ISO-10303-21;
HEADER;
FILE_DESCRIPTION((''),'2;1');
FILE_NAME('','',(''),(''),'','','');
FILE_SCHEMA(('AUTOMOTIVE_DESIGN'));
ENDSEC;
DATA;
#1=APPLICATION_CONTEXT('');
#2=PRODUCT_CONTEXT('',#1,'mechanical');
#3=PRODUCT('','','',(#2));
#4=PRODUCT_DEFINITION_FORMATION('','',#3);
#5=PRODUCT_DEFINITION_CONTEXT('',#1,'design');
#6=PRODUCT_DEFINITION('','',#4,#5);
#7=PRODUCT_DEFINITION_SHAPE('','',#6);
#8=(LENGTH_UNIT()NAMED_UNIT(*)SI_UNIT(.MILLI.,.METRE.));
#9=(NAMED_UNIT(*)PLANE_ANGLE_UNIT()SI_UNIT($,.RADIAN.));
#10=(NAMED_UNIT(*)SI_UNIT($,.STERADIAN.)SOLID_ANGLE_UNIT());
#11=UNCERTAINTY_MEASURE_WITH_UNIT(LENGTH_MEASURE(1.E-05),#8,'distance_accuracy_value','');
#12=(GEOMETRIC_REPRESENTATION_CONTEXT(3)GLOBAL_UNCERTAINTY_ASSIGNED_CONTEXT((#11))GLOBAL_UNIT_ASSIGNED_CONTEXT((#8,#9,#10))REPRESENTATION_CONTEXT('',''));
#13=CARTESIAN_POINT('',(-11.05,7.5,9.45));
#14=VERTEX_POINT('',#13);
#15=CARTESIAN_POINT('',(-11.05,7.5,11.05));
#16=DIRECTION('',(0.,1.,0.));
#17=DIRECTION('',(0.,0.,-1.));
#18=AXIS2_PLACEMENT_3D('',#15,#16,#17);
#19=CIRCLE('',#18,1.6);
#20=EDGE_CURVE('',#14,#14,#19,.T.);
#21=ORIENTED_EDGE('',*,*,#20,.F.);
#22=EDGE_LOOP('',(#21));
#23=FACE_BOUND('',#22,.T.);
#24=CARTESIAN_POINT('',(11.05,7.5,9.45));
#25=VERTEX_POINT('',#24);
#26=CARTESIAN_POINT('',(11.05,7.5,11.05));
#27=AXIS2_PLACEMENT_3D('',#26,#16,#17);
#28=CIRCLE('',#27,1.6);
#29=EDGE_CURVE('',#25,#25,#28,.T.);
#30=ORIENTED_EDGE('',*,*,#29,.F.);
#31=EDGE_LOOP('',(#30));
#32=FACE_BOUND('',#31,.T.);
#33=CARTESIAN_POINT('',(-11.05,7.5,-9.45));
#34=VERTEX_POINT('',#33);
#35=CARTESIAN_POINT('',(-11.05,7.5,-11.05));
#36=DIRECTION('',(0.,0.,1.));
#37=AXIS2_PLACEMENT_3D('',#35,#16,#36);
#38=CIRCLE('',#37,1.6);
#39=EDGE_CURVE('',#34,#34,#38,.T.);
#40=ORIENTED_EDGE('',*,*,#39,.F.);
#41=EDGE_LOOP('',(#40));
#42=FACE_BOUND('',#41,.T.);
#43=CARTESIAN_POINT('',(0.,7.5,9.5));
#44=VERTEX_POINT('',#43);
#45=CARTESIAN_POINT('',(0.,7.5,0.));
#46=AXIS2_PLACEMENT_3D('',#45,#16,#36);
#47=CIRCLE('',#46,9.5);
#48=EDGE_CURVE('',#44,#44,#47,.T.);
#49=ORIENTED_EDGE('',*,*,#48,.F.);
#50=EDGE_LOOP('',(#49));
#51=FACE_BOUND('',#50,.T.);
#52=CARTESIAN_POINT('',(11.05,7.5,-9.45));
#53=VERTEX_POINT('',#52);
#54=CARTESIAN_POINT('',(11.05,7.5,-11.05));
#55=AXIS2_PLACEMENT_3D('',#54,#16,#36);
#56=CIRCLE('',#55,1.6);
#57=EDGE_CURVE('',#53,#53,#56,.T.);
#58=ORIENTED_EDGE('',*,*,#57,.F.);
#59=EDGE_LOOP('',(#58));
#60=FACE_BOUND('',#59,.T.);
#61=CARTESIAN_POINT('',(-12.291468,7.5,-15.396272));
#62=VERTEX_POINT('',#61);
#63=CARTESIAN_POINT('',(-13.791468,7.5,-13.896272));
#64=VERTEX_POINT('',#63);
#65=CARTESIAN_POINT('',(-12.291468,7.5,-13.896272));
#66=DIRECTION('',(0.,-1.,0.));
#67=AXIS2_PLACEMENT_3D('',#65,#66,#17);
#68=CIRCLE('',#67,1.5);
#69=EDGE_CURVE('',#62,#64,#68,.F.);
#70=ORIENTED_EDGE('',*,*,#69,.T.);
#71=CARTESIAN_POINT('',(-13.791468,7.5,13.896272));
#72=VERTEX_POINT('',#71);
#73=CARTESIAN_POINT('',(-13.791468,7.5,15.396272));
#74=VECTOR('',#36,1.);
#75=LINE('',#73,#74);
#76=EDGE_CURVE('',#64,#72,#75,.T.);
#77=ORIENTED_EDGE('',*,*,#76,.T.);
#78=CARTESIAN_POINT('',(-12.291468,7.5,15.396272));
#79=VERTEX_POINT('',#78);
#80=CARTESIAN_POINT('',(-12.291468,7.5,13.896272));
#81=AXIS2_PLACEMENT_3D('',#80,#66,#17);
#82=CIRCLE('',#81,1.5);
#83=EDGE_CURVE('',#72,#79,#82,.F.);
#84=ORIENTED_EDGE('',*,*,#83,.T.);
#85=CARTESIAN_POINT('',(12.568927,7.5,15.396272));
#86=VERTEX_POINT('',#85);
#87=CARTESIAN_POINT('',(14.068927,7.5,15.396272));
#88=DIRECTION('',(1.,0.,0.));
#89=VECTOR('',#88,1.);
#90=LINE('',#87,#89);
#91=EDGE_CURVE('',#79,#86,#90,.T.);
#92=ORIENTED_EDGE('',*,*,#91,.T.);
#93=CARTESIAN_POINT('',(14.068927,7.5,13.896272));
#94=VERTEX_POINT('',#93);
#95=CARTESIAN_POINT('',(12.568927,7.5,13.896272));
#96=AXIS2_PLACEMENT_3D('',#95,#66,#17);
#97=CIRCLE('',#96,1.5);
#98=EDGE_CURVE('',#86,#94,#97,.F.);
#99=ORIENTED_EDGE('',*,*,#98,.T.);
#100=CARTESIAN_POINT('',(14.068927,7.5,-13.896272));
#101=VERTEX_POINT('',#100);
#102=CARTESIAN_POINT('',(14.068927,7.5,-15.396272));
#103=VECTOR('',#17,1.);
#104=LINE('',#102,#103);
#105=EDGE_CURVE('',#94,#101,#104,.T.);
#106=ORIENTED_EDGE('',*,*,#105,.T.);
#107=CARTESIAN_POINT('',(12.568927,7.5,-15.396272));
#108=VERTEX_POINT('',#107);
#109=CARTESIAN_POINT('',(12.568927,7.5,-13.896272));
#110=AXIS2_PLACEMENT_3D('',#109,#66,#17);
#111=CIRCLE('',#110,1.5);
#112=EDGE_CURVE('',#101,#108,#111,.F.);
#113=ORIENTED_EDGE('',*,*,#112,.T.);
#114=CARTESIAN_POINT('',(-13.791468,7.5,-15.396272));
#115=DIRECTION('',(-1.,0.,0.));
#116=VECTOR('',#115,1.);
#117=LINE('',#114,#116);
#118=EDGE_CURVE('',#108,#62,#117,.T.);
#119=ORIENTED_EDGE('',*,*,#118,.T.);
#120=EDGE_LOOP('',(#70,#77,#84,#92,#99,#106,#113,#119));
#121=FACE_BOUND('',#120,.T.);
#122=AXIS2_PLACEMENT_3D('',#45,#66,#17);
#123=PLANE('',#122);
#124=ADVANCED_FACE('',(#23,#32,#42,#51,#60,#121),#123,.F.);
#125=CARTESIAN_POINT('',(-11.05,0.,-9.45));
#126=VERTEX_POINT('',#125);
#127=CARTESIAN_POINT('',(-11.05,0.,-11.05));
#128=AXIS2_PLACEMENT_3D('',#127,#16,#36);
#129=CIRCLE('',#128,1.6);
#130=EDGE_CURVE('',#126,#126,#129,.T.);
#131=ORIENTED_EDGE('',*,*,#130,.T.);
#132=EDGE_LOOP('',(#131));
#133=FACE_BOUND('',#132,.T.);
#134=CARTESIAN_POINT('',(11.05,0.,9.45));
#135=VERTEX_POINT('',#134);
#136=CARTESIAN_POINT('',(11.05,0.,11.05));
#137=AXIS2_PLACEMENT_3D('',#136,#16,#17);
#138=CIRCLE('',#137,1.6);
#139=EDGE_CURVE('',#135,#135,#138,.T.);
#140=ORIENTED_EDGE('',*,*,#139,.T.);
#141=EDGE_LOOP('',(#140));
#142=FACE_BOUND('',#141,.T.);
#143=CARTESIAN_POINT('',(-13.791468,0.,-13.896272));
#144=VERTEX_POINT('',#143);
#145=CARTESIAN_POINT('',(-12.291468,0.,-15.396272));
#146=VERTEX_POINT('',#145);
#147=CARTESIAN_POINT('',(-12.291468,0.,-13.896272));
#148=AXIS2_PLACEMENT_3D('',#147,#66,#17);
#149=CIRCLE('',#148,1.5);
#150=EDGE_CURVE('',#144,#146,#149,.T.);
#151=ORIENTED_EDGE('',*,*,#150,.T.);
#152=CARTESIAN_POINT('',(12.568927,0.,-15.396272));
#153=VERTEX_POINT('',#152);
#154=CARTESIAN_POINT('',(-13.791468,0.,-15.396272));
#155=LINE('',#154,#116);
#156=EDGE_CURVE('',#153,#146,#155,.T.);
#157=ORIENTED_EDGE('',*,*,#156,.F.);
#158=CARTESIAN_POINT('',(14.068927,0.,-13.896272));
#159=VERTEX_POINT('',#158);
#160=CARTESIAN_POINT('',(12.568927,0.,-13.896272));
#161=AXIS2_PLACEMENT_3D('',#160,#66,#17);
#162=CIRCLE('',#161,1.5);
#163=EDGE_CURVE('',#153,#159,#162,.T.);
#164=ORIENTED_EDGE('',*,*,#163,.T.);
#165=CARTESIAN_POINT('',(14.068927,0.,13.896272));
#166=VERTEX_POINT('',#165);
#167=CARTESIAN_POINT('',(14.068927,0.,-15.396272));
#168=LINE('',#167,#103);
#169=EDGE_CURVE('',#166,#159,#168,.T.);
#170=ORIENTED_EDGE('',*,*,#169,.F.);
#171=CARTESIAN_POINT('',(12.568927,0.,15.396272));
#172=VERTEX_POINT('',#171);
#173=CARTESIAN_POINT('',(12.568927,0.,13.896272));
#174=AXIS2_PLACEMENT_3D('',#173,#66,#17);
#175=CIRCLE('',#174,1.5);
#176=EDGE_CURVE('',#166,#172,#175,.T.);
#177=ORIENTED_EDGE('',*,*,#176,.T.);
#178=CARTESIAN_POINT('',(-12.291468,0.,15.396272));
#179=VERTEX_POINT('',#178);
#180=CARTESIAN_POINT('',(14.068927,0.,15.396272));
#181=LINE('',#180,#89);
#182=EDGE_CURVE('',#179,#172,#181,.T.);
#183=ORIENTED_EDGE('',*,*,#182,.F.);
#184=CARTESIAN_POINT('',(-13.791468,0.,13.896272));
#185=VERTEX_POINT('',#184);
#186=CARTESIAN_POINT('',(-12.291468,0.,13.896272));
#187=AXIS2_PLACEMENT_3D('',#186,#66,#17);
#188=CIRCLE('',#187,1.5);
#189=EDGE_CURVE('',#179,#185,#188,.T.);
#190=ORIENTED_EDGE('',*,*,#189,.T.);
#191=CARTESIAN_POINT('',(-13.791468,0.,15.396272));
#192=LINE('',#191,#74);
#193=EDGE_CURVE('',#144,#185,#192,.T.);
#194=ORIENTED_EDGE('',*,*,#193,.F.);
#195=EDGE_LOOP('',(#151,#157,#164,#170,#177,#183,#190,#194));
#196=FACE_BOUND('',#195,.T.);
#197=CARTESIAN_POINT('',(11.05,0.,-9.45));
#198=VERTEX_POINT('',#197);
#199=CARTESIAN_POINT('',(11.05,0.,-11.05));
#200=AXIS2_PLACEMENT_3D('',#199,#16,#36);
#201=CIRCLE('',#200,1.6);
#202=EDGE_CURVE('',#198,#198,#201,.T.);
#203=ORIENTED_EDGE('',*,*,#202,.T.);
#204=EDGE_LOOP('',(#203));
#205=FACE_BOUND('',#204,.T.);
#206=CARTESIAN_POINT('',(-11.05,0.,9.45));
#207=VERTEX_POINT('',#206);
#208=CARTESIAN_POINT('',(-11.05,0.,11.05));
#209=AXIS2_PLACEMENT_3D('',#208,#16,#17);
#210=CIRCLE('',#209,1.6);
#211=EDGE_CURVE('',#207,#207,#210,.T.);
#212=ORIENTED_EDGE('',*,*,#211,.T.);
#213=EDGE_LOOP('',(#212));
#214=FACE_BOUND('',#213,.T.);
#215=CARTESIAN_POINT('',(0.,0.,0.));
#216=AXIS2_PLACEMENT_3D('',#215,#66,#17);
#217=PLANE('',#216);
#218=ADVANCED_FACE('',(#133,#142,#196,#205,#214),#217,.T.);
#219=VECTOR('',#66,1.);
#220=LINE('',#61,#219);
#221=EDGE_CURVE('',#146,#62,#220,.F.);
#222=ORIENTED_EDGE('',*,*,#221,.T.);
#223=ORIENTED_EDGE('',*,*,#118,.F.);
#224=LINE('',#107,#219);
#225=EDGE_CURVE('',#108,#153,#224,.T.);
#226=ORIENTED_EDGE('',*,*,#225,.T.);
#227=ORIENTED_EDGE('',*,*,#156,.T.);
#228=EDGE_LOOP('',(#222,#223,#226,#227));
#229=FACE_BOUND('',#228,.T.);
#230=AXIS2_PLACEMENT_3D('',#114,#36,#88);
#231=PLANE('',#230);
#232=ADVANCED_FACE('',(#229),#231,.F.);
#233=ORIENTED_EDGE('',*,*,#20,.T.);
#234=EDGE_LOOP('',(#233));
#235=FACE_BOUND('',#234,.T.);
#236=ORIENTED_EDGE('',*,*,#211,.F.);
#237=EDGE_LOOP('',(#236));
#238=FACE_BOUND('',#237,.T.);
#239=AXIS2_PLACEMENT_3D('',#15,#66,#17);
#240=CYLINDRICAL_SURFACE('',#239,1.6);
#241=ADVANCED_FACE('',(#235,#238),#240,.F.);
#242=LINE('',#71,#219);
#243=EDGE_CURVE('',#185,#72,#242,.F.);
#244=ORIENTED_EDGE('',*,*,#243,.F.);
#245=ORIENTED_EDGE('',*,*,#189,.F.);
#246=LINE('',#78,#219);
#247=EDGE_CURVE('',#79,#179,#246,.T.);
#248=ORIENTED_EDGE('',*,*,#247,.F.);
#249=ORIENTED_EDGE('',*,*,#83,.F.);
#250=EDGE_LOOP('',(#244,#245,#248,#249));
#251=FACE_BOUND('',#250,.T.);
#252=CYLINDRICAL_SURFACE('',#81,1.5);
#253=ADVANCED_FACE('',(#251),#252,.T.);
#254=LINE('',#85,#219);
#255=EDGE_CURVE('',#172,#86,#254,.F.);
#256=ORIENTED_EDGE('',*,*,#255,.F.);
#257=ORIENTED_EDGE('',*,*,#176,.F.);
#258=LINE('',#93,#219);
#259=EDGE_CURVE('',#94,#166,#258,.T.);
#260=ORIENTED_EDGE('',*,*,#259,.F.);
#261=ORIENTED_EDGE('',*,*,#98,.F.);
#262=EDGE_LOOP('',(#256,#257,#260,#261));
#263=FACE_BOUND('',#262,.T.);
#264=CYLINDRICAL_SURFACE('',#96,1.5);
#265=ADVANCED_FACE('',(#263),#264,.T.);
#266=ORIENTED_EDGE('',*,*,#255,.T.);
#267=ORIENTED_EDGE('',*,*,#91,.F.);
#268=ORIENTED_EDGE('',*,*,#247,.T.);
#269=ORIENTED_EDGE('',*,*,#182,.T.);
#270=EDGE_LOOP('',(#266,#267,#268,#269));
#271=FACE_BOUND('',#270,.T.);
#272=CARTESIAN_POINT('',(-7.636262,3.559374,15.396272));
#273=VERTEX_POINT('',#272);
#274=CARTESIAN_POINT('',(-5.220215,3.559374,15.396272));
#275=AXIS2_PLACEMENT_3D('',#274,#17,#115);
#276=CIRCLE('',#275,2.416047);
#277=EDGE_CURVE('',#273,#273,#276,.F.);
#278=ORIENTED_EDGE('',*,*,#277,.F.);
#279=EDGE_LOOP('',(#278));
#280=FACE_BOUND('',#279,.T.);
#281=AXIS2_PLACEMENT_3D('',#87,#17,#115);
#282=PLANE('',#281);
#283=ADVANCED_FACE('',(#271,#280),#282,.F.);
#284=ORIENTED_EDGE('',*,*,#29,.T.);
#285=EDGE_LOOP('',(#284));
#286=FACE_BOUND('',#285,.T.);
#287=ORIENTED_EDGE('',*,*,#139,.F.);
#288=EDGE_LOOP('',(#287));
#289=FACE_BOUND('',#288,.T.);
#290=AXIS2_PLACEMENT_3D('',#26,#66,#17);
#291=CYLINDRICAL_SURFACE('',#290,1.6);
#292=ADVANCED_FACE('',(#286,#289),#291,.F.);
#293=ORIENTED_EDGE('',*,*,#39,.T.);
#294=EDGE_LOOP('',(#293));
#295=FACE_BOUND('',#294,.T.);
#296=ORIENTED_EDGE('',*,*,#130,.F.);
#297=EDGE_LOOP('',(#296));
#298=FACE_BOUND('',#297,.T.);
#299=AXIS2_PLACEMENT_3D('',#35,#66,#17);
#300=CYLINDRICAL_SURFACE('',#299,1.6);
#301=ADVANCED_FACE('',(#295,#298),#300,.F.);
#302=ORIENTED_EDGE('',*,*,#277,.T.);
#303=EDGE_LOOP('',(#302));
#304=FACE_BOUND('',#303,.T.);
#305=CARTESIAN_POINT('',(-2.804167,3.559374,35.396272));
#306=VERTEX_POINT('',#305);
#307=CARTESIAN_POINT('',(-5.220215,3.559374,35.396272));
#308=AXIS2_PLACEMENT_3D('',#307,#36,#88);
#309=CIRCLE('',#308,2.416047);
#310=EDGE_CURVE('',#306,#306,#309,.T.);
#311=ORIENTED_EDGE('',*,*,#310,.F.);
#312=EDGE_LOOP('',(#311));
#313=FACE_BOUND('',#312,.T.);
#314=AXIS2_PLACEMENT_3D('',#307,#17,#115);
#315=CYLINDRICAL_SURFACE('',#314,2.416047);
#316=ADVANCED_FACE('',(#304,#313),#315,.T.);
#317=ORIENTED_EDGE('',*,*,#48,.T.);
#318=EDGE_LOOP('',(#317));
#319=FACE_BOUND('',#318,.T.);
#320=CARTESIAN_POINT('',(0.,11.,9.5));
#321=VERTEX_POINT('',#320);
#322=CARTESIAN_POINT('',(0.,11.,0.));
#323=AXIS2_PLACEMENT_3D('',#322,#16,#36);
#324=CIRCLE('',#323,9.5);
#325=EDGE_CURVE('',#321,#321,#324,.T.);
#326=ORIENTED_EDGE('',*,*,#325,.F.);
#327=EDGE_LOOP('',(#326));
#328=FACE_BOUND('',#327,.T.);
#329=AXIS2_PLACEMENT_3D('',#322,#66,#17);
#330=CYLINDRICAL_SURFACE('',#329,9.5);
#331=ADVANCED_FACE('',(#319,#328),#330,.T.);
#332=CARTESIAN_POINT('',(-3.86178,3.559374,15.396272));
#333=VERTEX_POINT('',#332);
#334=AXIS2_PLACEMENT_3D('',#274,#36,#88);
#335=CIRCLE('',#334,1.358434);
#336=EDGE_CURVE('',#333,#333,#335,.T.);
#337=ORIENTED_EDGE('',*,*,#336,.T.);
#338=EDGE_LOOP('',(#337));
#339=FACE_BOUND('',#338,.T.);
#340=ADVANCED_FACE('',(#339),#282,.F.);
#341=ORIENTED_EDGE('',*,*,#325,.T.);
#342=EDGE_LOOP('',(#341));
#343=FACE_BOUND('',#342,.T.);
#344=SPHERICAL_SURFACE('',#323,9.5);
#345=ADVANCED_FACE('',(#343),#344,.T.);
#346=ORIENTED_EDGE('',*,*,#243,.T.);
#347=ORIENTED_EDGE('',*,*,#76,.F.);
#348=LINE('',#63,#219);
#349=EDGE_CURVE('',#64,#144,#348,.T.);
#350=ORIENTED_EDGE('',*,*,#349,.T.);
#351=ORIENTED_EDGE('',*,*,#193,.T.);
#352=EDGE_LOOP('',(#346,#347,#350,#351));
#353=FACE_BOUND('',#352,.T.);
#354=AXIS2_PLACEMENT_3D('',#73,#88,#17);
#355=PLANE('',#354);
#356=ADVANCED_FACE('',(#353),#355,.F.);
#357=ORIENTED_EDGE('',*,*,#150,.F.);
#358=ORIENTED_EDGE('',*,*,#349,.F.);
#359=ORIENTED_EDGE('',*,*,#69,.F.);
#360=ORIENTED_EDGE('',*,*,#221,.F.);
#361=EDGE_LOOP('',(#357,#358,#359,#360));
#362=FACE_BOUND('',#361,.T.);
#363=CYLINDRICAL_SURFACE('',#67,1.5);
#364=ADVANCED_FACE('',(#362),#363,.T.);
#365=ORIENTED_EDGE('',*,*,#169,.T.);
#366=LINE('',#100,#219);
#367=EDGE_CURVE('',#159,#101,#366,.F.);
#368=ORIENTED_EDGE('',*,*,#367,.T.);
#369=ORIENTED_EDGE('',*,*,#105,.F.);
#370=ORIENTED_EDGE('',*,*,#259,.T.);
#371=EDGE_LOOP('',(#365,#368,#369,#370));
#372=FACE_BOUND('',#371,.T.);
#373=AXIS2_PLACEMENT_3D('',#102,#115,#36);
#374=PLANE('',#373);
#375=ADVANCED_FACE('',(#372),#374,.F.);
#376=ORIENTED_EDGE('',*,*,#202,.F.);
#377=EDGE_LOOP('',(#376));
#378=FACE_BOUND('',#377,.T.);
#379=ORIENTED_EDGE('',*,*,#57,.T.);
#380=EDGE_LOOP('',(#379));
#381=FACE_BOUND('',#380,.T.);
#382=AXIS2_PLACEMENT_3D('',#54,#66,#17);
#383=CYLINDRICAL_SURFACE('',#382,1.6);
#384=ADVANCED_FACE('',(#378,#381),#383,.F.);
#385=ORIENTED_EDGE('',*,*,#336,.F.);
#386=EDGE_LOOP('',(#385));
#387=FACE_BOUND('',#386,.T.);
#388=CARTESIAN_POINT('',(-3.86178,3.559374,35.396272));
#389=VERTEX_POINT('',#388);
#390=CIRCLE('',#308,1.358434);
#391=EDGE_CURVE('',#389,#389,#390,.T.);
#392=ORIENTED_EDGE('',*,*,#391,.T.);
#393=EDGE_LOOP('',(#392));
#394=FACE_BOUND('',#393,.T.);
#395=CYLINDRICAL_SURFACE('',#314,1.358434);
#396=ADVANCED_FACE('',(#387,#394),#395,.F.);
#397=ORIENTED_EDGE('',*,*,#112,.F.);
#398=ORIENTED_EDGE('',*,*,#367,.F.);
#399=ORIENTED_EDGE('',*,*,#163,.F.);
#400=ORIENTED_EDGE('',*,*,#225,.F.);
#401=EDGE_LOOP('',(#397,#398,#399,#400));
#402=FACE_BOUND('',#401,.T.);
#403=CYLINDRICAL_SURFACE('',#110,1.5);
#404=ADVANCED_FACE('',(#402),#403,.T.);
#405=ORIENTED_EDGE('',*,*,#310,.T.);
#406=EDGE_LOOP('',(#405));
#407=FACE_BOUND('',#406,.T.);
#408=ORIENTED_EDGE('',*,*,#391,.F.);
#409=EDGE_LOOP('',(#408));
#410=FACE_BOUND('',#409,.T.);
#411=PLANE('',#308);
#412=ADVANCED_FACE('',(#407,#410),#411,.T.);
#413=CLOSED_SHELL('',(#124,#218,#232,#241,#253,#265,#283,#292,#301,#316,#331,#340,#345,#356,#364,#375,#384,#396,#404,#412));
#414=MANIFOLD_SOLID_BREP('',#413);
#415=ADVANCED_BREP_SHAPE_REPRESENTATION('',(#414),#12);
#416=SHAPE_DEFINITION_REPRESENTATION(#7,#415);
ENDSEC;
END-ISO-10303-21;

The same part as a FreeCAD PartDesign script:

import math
import FreeCAD as App
import Part
import Sketcher

V = App.Vector


def edges_at(feature, points):
    """Names of the edges that pass closest to the given points."""
    edges = feature.Shape.Edges
    near = lambda p: min(range(len(edges)), key=lambda i: edges[i].distToShape(Part.Vertex(*p))[0])
    return sorted({f"Edge{near(p) + 1}" for p in points})

doc = App.newDocument("Part")
params = doc.addObject("Spreadsheet::Sheet", "Params")
for row, (alias, value) in enumerate([
    ("sketch1_diameter", "3.2 mm"),
    ("pad1_length", "7.5 mm"),
    ("sketch2_diameter", "19 mm"),
    ("pad2_length", "3.5 mm"),
    ("sketch3_radius", "9.5 mm"),
    ("revolution_angle", "180 deg"),
    ("fillet_radius", "1.5 mm"),
    ("pad3_length", "20 mm"),
], start=1):
    params.set(f"A{row}", alias)
    params.set(f"B{row}", "=" + value)
    params.setAlias(f"B{row}", alias)

body = doc.addObject("PartDesign::Body", "Body")

# Sketch on XZ plane
sketch1 = body.newObject("Sketcher::SketchObject", "Sketch")
sketch1.AttachmentSupport = (doc.getObject("XZ_Plane"), [""])
sketch1.MapMode = "FlatFace"
sketch1.addGeometry(Part.LineSegment(V(-13.8, -15.4, 0), V(-13.8, 15.4, 0)), False)
sketch1.addGeometry(Part.LineSegment(V(-13.8, 15.4, 0), V(14.1, 15.4, 0)), False)
sketch1.addGeometry(Part.LineSegment(V(14.1, 15.4, 0), V(14.1, -15.4, 0)), False)
sketch1.addGeometry(Part.LineSegment(V(14.1, -15.4, 0), V(-13.8, -15.4, 0)), False)
sketch1.addGeometry(Part.Circle(V(-11.1, 11.1, 0), V(0, 0, 1), 1.6), False)
sketch1.addGeometry(Part.Circle(V(11.1, 11.1, 0), V(0, 0, 1), 1.6), False)
sketch1.addGeometry(Part.Circle(V(-11.1, -11.1, 0), V(0, 0, 1), 1.6), False)
sketch1.addGeometry(Part.Circle(V(11.1, -11.1, 0), V(0, 0, 1), 1.6), False)
sketch1.addConstraint(Sketcher.Constraint("Coincident", 0, 2, 1, 1))
sketch1.addConstraint(Sketcher.Constraint("Coincident", 1, 2, 2, 1))
sketch1.addConstraint(Sketcher.Constraint("Coincident", 2, 2, 3, 1))
sketch1.addConstraint(Sketcher.Constraint("Coincident", 3, 2, 0, 1))
sketch1.addConstraint(Sketcher.Constraint("Vertical", 0))
sketch1.addConstraint(Sketcher.Constraint("Horizontal", 1))
sketch1.addConstraint(Sketcher.Constraint("Vertical", 2))
sketch1.addConstraint(Sketcher.Constraint("Horizontal", 3))
sketch1.addConstraint(Sketcher.Constraint("Equal", 4, 5))
sketch1.addConstraint(Sketcher.Constraint("Equal", 5, 6))
sketch1.addConstraint(Sketcher.Constraint("Equal", 6, 7))
sketch1.addConstraint(Sketcher.Constraint("Symmetric", 5, 3, 6, 3, -1, 1))
sketch1.addConstraint(Sketcher.Constraint("Symmetric", 4, 3, 7, 3, -1, 1))
sketch1.addConstraint(Sketcher.Constraint("Symmetric", 4, 3, 5, 3, -2))
sketch1.addConstraint(Sketcher.Constraint("Diameter", 4, 3.2))
sketch1.addConstraint(Sketcher.Constraint("DistanceX", 4, 3, 5, 3, 22.1))
sketch1.addConstraint(Sketcher.Constraint("DistanceY", 6, 3, 4, 3, 22.1))
sketch1.addConstraint(Sketcher.Constraint("DistanceX", 1, 1, 1, 2, 27.860396))
sketch1.addConstraint(Sketcher.Constraint("DistanceY", 0, 1, 0, 2, 30.792543))
sketch1.addConstraint(Sketcher.Constraint("DistanceX", 0, 2, -1, 1, 13.791468))
sketch1.addConstraint(Sketcher.Constraint("DistanceY", -1, 1, 0, 2, 15.396272))
sketch1.setExpression("Constraints[14]", "Params.sketch1_diameter")
pad1 = body.newObject("PartDesign::Pad", "Pad")
pad1.Profile = sketch1
pad1.setExpression("Length", "Params.pad1_length")
pad1.Reversed = True

# Sketch on XZ plane
sketch2 = body.newObject("Sketcher::SketchObject", "Sketch001")
sketch2.AttachmentSupport = (doc.getObject("XZ_Plane"), [""])
sketch2.MapMode = "FlatFace"
sketch2.AttachmentOffset = App.Placement(V(0, 0, -7.5), App.Rotation())
sketch2.addGeometry(Part.Circle(V(0, 0, 0), V(0, 0, 1), 10), False)
sketch2.addConstraint(Sketcher.Constraint("Coincident", 0, 3, -1, 1))
sketch2.addConstraint(Sketcher.Constraint("Diameter", 0, 19.0))
sketch2.setExpression("Constraints[1]", "Params.sketch2_diameter")
pad2 = body.newObject("PartDesign::Pad", "Pad001")
pad2.Profile = sketch2
pad2.setExpression("Length", "Params.pad2_length")
pad2.Reversed = True

# Sketch on XZ plane
sketch3 = body.newObject("Sketcher::SketchObject", "Sketch002")
sketch3.AttachmentSupport = (doc.getObject("XZ_Plane"), [""])
sketch3.MapMode = "FlatFace"
sketch3.AttachmentOffset = App.Placement(V(0, 0, -11), App.Rotation())
sketch3.addGeometry(Part.LineSegment(V(-10, 0, 0), V(10, 0, 0)), False)
sketch3.addGeometry(Part.ArcOfCircle(Part.Circle(V(0, 0, 0), V(0, 0, 1), 10), math.radians(180), math.radians(360)), False)
sketch3.addConstraint(Sketcher.Constraint("Coincident", 0, 1, 1, 1))
sketch3.addConstraint(Sketcher.Constraint("Coincident", 1, 2, 0, 2))
sketch3.addConstraint(Sketcher.Constraint("Horizontal", 0))
sketch3.addConstraint(Sketcher.Constraint("Coincident", 1, 3, -1, 1))
sketch3.addConstraint(Sketcher.Constraint("PointOnObject", 0, 1, -1))
sketch3.addConstraint(Sketcher.Constraint("Radius", 1, 9.5))
sketch3.setExpression("Constraints[5]", "Params.sketch3_radius")
revolution = body.newObject("PartDesign::Revolution", "Revolution")
revolution.Profile = sketch3
revolution.ReferenceAxis = (sketch3, ["H_Axis"])
revolution.setExpression("Angle", "Params.revolution_angle")
doc.recompute()

fillet = body.newObject("PartDesign::Fillet", "Fillet")
fillet.Base = (revolution, edges_at(revolution, [
    (-13.791, 3.75, -15.396),
    (14.069, 3.75, -15.396),
    (14.069, 3.75, 15.396),
    (-13.791, 3.75, 15.396),
]))
fillet.setExpression("Radius", "Params.fillet_radius")

# Sketch on XY plane
sketch4 = body.newObject("Sketcher::SketchObject", "Sketch003")
sketch4.AttachmentSupport = (doc.getObject("XY_Plane"), [""])
sketch4.MapMode = "FlatFace"
sketch4.AttachmentOffset = App.Placement(V(0, 0, 15.396272), App.Rotation())
sketch4.addGeometry(Part.Circle(V(-5.2, 3.6, 0), V(0, 0, 1), 2.4), False)
sketch4.addGeometry(Part.Circle(V(-5.2, 3.6, 0), V(0, 0, 1), 1.4), False)
sketch4.addConstraint(Sketcher.Constraint("Coincident", 1, 3, 0, 3))
sketch4.addConstraint(Sketcher.Constraint("Diameter", 1, 2.716869))
sketch4.addConstraint(Sketcher.Constraint("Diameter", 0, 4.832095))
sketch4.addConstraint(Sketcher.Constraint("DistanceX", 0, 3, -1, 1, 5.220215))
sketch4.addConstraint(Sketcher.Constraint("DistanceY", -1, 1, 0, 3, 3.559374))
pad3 = body.newObject("PartDesign::Pad", "Pad002")
pad3.Profile = sketch4
pad3.setExpression("Length", "Params.pad3_length")

doc.recompute()
